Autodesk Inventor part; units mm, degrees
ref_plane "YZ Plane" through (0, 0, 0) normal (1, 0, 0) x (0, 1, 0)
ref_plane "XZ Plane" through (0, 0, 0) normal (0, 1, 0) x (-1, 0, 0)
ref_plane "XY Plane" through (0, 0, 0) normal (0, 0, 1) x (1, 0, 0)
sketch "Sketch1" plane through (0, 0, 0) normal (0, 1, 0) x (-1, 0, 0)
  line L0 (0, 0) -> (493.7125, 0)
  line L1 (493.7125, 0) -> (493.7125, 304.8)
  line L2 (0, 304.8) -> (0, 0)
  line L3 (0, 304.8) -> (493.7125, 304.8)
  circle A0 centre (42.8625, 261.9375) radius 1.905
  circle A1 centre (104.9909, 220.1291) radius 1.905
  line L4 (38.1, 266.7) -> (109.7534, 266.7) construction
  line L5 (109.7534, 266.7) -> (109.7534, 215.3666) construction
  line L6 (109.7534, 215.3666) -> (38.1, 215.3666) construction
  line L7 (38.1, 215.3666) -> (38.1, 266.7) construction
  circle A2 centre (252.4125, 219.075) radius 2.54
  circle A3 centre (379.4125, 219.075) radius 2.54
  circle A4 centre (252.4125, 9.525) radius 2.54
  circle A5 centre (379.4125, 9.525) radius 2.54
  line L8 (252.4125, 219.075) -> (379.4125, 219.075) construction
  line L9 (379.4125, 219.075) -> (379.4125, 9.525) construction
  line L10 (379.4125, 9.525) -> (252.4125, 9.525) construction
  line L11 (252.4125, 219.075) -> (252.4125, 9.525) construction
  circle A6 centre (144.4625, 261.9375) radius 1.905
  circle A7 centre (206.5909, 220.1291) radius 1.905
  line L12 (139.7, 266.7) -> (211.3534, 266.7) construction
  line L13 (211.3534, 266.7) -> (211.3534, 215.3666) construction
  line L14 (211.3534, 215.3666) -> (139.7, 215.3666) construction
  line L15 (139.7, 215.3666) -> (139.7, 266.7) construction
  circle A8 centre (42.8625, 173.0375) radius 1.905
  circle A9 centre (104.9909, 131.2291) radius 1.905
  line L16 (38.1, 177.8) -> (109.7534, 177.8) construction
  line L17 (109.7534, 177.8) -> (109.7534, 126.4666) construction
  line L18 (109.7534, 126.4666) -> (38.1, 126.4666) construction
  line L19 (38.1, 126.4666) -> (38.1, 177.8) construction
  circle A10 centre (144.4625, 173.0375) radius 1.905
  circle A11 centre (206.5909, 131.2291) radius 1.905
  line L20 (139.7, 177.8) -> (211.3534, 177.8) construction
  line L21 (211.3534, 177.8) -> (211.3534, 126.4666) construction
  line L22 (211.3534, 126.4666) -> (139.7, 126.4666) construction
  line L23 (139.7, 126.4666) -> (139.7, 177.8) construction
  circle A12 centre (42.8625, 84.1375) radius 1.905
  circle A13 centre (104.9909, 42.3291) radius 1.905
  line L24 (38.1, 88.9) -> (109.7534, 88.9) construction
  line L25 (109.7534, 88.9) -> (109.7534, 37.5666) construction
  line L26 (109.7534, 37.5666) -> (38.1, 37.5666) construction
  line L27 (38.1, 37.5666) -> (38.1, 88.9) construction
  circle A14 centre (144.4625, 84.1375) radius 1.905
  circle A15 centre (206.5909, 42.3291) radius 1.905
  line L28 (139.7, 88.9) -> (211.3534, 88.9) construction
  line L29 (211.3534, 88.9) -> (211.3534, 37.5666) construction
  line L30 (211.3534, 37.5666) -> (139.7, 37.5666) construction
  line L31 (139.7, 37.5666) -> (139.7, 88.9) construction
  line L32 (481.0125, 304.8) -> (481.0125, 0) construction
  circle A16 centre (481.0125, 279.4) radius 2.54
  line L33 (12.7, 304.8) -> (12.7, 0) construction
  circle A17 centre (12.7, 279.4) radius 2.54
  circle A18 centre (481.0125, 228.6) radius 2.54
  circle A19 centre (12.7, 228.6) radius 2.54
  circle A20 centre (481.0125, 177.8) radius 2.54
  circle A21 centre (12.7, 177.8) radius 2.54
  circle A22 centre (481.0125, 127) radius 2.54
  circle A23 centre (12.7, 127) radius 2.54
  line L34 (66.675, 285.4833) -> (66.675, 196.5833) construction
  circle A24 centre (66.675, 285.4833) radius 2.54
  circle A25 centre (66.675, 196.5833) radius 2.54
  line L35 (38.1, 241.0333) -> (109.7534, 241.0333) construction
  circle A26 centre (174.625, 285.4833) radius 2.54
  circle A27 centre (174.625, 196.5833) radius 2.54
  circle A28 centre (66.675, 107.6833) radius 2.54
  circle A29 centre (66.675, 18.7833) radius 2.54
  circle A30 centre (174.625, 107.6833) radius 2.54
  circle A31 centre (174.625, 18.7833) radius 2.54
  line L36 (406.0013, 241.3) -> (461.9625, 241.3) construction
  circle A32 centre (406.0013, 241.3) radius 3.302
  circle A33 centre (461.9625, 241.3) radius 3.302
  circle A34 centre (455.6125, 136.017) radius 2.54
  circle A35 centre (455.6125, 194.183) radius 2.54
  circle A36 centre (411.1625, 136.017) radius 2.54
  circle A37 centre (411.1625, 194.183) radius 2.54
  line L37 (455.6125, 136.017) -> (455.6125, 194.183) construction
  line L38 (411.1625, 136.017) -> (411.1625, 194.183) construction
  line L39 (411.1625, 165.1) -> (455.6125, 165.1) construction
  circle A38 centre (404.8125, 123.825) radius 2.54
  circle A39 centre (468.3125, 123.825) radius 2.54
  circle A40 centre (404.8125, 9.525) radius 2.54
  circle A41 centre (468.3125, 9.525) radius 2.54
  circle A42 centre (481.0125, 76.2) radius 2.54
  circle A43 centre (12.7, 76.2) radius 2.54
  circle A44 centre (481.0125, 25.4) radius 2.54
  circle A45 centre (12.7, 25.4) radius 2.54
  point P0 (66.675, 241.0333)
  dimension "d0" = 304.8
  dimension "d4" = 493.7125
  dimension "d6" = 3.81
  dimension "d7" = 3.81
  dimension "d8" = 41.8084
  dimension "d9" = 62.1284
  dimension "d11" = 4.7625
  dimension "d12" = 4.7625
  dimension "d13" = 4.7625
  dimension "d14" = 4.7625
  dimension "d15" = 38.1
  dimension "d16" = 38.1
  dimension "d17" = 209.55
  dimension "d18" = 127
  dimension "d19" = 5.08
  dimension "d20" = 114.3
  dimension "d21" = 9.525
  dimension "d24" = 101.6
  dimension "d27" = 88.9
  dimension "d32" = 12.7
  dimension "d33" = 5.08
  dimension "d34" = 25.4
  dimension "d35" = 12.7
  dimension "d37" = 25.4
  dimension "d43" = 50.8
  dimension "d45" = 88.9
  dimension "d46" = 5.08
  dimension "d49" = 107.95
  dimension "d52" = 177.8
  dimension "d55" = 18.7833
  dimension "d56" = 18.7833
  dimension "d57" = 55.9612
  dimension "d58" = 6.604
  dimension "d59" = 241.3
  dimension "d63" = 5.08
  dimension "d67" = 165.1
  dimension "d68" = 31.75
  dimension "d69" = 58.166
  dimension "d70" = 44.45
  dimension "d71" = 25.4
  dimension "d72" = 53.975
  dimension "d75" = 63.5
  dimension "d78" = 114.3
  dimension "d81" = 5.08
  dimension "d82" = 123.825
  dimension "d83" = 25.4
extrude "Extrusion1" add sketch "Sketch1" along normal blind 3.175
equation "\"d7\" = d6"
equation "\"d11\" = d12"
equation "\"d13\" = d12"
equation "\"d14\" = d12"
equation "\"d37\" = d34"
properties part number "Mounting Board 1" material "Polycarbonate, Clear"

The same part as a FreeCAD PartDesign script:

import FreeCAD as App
import Part
import Sketcher

V = App.Vector
Q = App.Units.Quantity


def add_polygon(sketch, points):
    """Adds a closed chain of lines whose ends are joined by coincident constraints."""
    first, n = sketch.GeometryCount, len(points)
    for a, b in zip(points, points[1:] + points[:1]):
        sketch.addGeometry(Part.LineSegment(App.Vector(*a, 0), App.Vector(*b, 0)), False)
    for i in range(n):
        sketch.addConstraint(Sketcher.Constraint("Coincident", first + i, 2, first + (i + 1) % n, 1))

doc = App.newDocument("Part")
body = doc.addObject("PartDesign::Body", "Body")

# Sketch on XZ plane
sketch1 = body.newObject("Sketcher::SketchObject", "Sketch")
sketch1.AttachmentSupport = (doc.getObject("XZ_Plane"), [""])
sketch1.MapMode = "FlatFace"
add_polygon(sketch1, [(0, 304.8), (0, 0), (-493.7, 0), (-493.7, 304.8)])  # lines 0-3
sketch1.addGeometry(Part.Circle(V(-12.7, 25.4, 0), V(0, 0, 1), 2.5), False)  # 4
sketch1.addGeometry(Part.Circle(V(-66.7, 18.8, 0), V(0, 0, 1), 2.5), False)  # 5
sketch1.addGeometry(Part.Circle(V(-105, 42.3, 0), V(0, 0, 1), 1.9), False)  # 6
sketch1.addGeometry(Part.Circle(V(-174.6, 18.8, 0), V(0, 0, 1), 2.5), False)  # 7
sketch1.addGeometry(Part.Circle(V(-206.6, 42.3, 0), V(0, 0, 1), 1.9), False)  # 8
sketch1.addGeometry(Part.Circle(V(-12.7, 76.2, 0), V(0, 0, 1), 2.5), False)  # 9
sketch1.addGeometry(Part.Circle(V(-42.9, 84.1, 0), V(0, 0, 1), 1.9), False)  # 10
sketch1.addGeometry(Part.Circle(V(-66.7, 107.7, 0), V(0, 0, 1), 2.5), False)  # 11
sketch1.addGeometry(Part.Circle(V(-12.7, 127, 0), V(0, 0, 1), 2.5), False)  # 12
sketch1.addGeometry(Part.Circle(V(-105, 131.2, 0), V(0, 0, 1), 1.9), False)  # 13
sketch1.addGeometry(Part.Circle(V(-144.5, 84.1, 0), V(0, 0, 1), 1.9), False)  # 14
sketch1.addGeometry(Part.Circle(V(-174.6, 107.7, 0), V(0, 0, 1), 2.5), False)  # 15
sketch1.addGeometry(Part.Circle(V(-206.6, 131.2, 0), V(0, 0, 1), 1.9), False)  # 16
sketch1.addGeometry(Part.Circle(V(-252.4, 9.5, 0), V(0, 0, 1), 2.5), False)  # 17
sketch1.addGeometry(Part.Circle(V(-379.4, 9.5, 0), V(0, 0, 1), 2.5), False)  # 18
sketch1.addGeometry(Part.Circle(V(-404.8, 9.5, 0), V(0, 0, 1), 2.5), False)  # 19
sketch1.addGeometry(Part.Circle(V(-468.3, 9.5, 0), V(0, 0, 1), 2.5), False)  # 20
sketch1.addGeometry(Part.Circle(V(-481, 25.4, 0), V(0, 0, 1), 2.5), False)  # 21
sketch1.addGeometry(Part.Circle(V(-481, 76.2, 0), V(0, 0, 1), 2.5), False)  # 22
sketch1.addGeometry(Part.Circle(V(-404.8, 123.8, 0), V(0, 0, 1), 2.5), False)  # 23
sketch1.addGeometry(Part.Circle(V(-411.2, 136, 0), V(0, 0, 1), 2.5), False)  # 24
sketch1.addGeometry(Part.Circle(V(-468.3, 123.8, 0), V(0, 0, 1), 2.5), False)  # 25
sketch1.addGeometry(Part.Circle(V(-481, 127, 0), V(0, 0, 1), 2.5), False)  # 26
sketch1.addGeometry(Part.Circle(V(-455.6, 136, 0), V(0, 0, 1), 2.5), False)  # 27
sketch1.addGeometry(Part.Circle(V(-12.7, 177.8, 0), V(0, 0, 1), 2.5), False)  # 28
sketch1.addGeometry(Part.Circle(V(-42.9, 173, 0), V(0, 0, 1), 1.9), False)  # 29
sketch1.addGeometry(Part.Circle(V(-66.7, 196.6, 0), V(0, 0, 1), 2.5), False)  # 30
sketch1.addGeometry(Part.Circle(V(-105, 220.1, 0), V(0, 0, 1), 1.9), False)  # 31
sketch1.addGeometry(Part.Circle(V(-144.5, 173, 0), V(0, 0, 1), 1.9), False)  # 32
sketch1.addGeometry(Part.Circle(V(-174.6, 196.6, 0), V(0, 0, 1), 2.5), False)  # 33
sketch1.addGeometry(Part.Circle(V(-206.6, 220.1, 0), V(0, 0, 1), 1.9), False)  # 34
sketch1.addGeometry(Part.Circle(V(-12.7, 228.6, 0), V(0, 0, 1), 2.5), False)  # 35
sketch1.addGeometry(Part.Circle(V(-42.9, 261.9, 0), V(0, 0, 1), 1.9), False)  # 36
sketch1.addGeometry(Part.Circle(V(-12.7, 279.4, 0), V(0, 0, 1), 2.5), False)  # 37
sketch1.addGeometry(Part.Circle(V(-66.7, 285.5, 0), V(0, 0, 1), 2.5), False)  # 38
sketch1.addGeometry(Part.Circle(V(-144.5, 261.9, 0), V(0, 0, 1), 1.9), False)  # 39
sketch1.addGeometry(Part.Circle(V(-174.6, 285.5, 0), V(0, 0, 1), 2.5), False)  # 40
sketch1.addGeometry(Part.Circle(V(-252.4, 219.1, 0), V(0, 0, 1), 2.5), False)  # 41
sketch1.addGeometry(Part.Circle(V(-481, 177.8, 0), V(0, 0, 1), 2.5), False)  # 42
sketch1.addGeometry(Part.Circle(V(-411.2, 194.2, 0), V(0, 0, 1), 2.5), False)  # 43
sketch1.addGeometry(Part.Circle(V(-379.4, 219.1, 0), V(0, 0, 1), 2.5), False)  # 44
sketch1.addGeometry(Part.Circle(V(-455.6, 194.2, 0), V(0, 0, 1), 2.5), False)  # 45
sketch1.addGeometry(Part.Circle(V(-406, 241.3, 0), V(0, 0, 1), 3.3), False)  # 46
sketch1.addGeometry(Part.Circle(V(-462, 241.3, 0), V(0, 0, 1), 3.3), False)  # 47
sketch1.addGeometry(Part.Circle(V(-481, 228.6, 0), V(0, 0, 1), 2.5), False)  # 48
sketch1.addGeometry(Part.Circle(V(-481, 279.4, 0), V(0, 0, 1), 2.5), False)  # 49
sketch1.addConstraint(Sketcher.Constraint("Vertical", 0))
sketch1.addConstraint(Sketcher.Constraint("Horizontal", 1))
sketch1.addConstraint(Sketcher.Constraint("Vertical", 2))
sketch1.addConstraint(Sketcher.Constraint("Horizontal", 3))
sketch1.addConstraint(Sketcher.Constraint("Coincident", 0, 2, -1, 1))
sketch1.addConstraint(Sketcher.Constraint("Equal", 4, 5))
sketch1.addConstraint(Sketcher.Constraint("Equal", 5, 7))
sketch1.addConstraint(Sketcher.Constraint("Equal", 6, 8))
sketch1.addConstraint(Sketcher.Constraint("Equal", 7, 9))
sketch1.addConstraint(Sketcher.Constraint("Equal", 8, 10))
sketch1.addConstraint(Sketcher.Constraint("Equal", 9, 11))
sketch1.addConstraint(Sketcher.Constraint("Equal", 11, 12))
sketch1.addConstraint(Sketcher.Constraint("Equal", 10, 13))
sketch1.addConstraint(Sketcher.Constraint("Equal", 13, 14))
sketch1.addConstraint(Sketcher.Constraint("Equal", 12, 15))
sketch1.addConstraint(Sketcher.Constraint("Equal", 14, 16))
sketch1.addConstraint(Sketcher.Constraint("Equal", 15, 17))
sketch1.addConstraint(Sketcher.Constraint("Equal", 17, 18))
sketch1.addConstraint(Sketcher.Constraint("Equal", 18, 19))
sketch1.addConstraint(Sketcher.Constraint("Equal", 19, 20))
sketch1.addConstraint(Sketcher.Constraint("Equal", 20, 21))
sketch1.addConstraint(Sketcher.Constraint("Equal", 21, 22))
sketch1.addConstraint(Sketcher.Constraint("Equal", 22, 23))
sketch1.addConstraint(Sketcher.Constraint("Equal", 23, 24))
sketch1.addConstraint(Sketcher.Constraint("Equal", 24, 25))
sketch1.addConstraint(Sketcher.Constraint("Equal", 25, 26))
sketch1.addConstraint(Sketcher.Constraint("Equal", 26, 27))
sketch1.addConstraint(Sketcher.Constraint("Equal", 27, 28))
sketch1.addConstraint(Sketcher.Constraint("Equal", 16, 29))
sketch1.addConstraint(Sketcher.Constraint("Equal", 28, 30))
sketch1.addConstraint(Sketcher.Constraint("Equal", 29, 31))
sketch1.addConstraint(Sketcher.Constraint("Equal", 31, 32))
sketch1.addConstraint(Sketcher.Constraint("Equal", 30, 33))
sketch1.addConstraint(Sketcher.Constraint("Equal", 32, 34))
sketch1.addConstraint(Sketcher.Constraint("Equal", 33, 35))
sketch1.addConstraint(Sketcher.Constraint("Equal", 34, 36))
sketch1.addConstraint(Sketcher.Constraint("Equal", 35, 37))
sketch1.addConstraint(Sketcher.Constraint("Equal", 37, 38))
sketch1.addConstraint(Sketcher.Constraint("Equal", 36, 39))
sketch1.addConstraint(Sketcher.Constraint("Equal", 38, 40))
sketch1.addConstraint(Sketcher.Constraint("Equal", 40, 41))
sketch1.addConstraint(Sketcher.Constraint("Equal", 41, 42))
sketch1.addConstraint(Sketcher.Constraint("Equal", 42, 43))
sketch1.addConstraint(Sketcher.Constraint("Equal", 43, 44))
sketch1.addConstraint(Sketcher.Constraint("Equal", 44, 45))
sketch1.addConstraint(Sketcher.Constraint("Equal", 46, 47))
sketch1.addConstraint(Sketcher.Constraint("Equal", 45, 48))
sketch1.addConstraint(Sketcher.Constraint("Equal", 48, 49))
sketch1.addConstraint(Sketcher.Constraint("Horizontal", 5, 3, 7, 3))
sketch1.addConstraint(Sketcher.Constraint("Horizontal", 6, 3, 8, 3))
sketch1.addConstraint(Sketcher.Constraint("Horizontal", 10, 3, 14, 3))
sketch1.addConstraint(Sketcher.Constraint("Horizontal", 11, 3, 15, 3))
sketch1.addConstraint(Sketcher.Constraint("Horizontal", 13, 3, 16, 3))
sketch1.addConstraint(Sketcher.Constraint("Horizontal", 17, 3, 18, 3))
sketch1.addConstraint(Sketcher.Constraint("Horizontal", 18, 3, 19, 3))
sketch1.addConstraint(Sketcher.Constraint("Horizontal", 19, 3, 20, 3))
sketch1.addConstraint(Sketcher.Constraint("Horizontal", 4, 3, 21, 3))
sketch1.addConstraint(Sketcher.Constraint("Horizontal", 9, 3, 22, 3))
sketch1.addConstraint(Sketcher.Constraint("Horizontal", 23, 3, 25, 3))
sketch1.addConstraint(Sketcher.Constraint("Horizontal", 12, 3, 26, 3))
sketch1.addConstraint(Sketcher.Constraint("Horizontal", 24, 3, 27, 3))
sketch1.addConstraint(Sketcher.Constraint("Horizontal", 29, 3, 32, 3))
sketch1.addConstraint(Sketcher.Constraint("Horizontal", 30, 3, 33, 3))
sketch1.addConstraint(Sketcher.Constraint("Horizontal", 31, 3, 34, 3))
sketch1.addConstraint(Sketcher.Constraint("Horizontal", 36, 3, 39, 3))
sketch1.addConstraint(Sketcher.Constraint("Horizontal", 38, 3, 40, 3))
sketch1.addConstraint(Sketcher.Constraint("Horizontal", 28, 3, 42, 3))
sketch1.addConstraint(Sketcher.Constraint("Horizontal", 41, 3, 44, 3))
sketch1.addConstraint(Sketcher.Constraint("Horizontal", 43, 3, 45, 3))
sketch1.addConstraint(Sketcher.Constraint("Horizontal", 46, 3, 47, 3))
sketch1.addConstraint(Sketcher.Constraint("Horizontal", 35, 3, 48, 3))
sketch1.addConstraint(Sketcher.Constraint("Horizontal", 37, 3, 49, 3))
sketch1.addConstraint(Sketcher.Constraint("Vertical", 4, 3, 9, 3))
sketch1.addConstraint(Sketcher.Constraint("Vertical", 5, 3, 11, 3))
sketch1.addConstraint(Sketcher.Constraint("Vertical", 9, 3, 12, 3))
sketch1.addConstraint(Sketcher.Constraint("Vertical", 6, 3, 13, 3))
sketch1.addConstraint(Sketcher.Constraint("Vertical", 7, 3, 15, 3))
sketch1.addConstraint(Sketcher.Constraint("Vertical", 8, 3, 16, 3))
sketch1.addConstraint(Sketcher.Constraint("Vertical", 21, 3, 22, 3))
sketch1.addConstraint(Sketcher.Constraint("Vertical", 19, 3, 23, 3))
sketch1.addConstraint(Sketcher.Constraint("Vertical", 20, 3, 25, 3))
sketch1.addConstraint(Sketcher.Constraint("Vertical", 22, 3, 26, 3))
sketch1.addConstraint(Sketcher.Constraint("Vertical", 12, 3, 28, 3))
sketch1.addConstraint(Sketcher.Constraint("Vertical", 10, 3, 29, 3))
sketch1.addConstraint(Sketcher.Constraint("Vertical", 11, 3, 30, 3))
sketch1.addConstraint(Sketcher.Constraint("Vertical", 13, 3, 31, 3))
sketch1.addConstraint(Sketcher.Constraint("Vertical", 14, 3, 32, 3))
sketch1.addConstraint(Sketcher.Constraint("Vertical", 15, 3, 33, 3))
sketch1.addConstraint(Sketcher.Constraint("Vertical", 16, 3, 34, 3))
sketch1.addConstraint(Sketcher.Constraint("Vertical", 28, 3, 35, 3))
sketch1.addConstraint(Sketcher.Constraint("Vertical", 29, 3, 36, 3))
sketch1.addConstraint(Sketcher.Constraint("Vertical", 35, 3, 37, 3))
sketch1.addConstraint(Sketcher.Constraint("Vertical", 30, 3, 38, 3))
sketch1.addConstraint(Sketcher.Constraint("Vertical", 32, 3, 39, 3))
sketch1.addConstraint(Sketcher.Constraint("Vertical", 33, 3, 40, 3))
sketch1.addConstraint(Sketcher.Constraint("Vertical", 17, 3, 41, 3))
sketch1.addConstraint(Sketcher.Constraint("Vertical", 26, 3, 42, 3))
sketch1.addConstraint(Sketcher.Constraint("Vertical", 24, 3, 43, 3))
sketch1.addConstraint(Sketcher.Constraint("Vertical", 18, 3, 44, 3))
sketch1.addConstraint(Sketcher.Constraint("Vertical", 27, 3, 45, 3))
sketch1.addConstraint(Sketcher.Constraint("Vertical", 42, 3, 48, 3))
sketch1.addConstraint(Sketcher.Constraint("Vertical", 48, 3, 49, 3))
sketch1.addConstraint(Sketcher.Constraint("Diameter", 4, Q("0.2 in")))
sketch1.addConstraint(Sketcher.Constraint("Diameter", 6, Q("0.15 in")))
sketch1.addConstraint(Sketcher.Constraint("Diameter", 46, Q("0.26 in")))
sketch1.addConstraint(Sketcher.Constraint("DistanceY", 0, 2, 0, 1, Q("12 in")))
sketch1.addConstraint(Sketcher.Constraint("DistanceY", -1, 1, 4, 3, Q("1 in")))
sketch1.addConstraint(Sketcher.Constraint("DistanceY", -1, 1, 12, 3, Q("5 in")))
sketch1.addConstraint(Sketcher.Constraint("DistanceY", -1, 1, 28, 3, Q("7 in")))
sketch1.addConstraint(Sketcher.Constraint("DistanceX", 8, 3, 6, 3, Q("4 in")))
sketch1.addConstraint(Sketcher.Constraint("DistanceY", 4, 3, 9, 3, Q("2 in")))
sketch1.addConstraint(Sketcher.Constraint("DistanceX", 18, 3, 17, 3, Q("5 in")))
sketch1.addConstraint(Sketcher.Constraint("DistanceX", 19, 3, 18, 3, Q("1 in")))
sketch1.addConstraint(Sketcher.Constraint("DistanceX", 21, 3, 18, 3, Q("4 in")))
sketch1.addConstraint(Sketcher.Constraint("DistanceX", 26, 3, 27, 3, Q("1 in")))
sketch1.addConstraint(Sketcher.Constraint("DistanceY", 28, 3, 35, 3, Q("2 in")))
sketch1.addConstraint(Sketcher.Constraint("DistanceY", 35, 3, 37, 3, Q("2 in")))
sketch1.addConstraint(Sketcher.Constraint("DistanceX", 47, 3, 43, 3, Q("2 in")))
sketch1.addConstraint(Sketcher.Constraint("DistanceX", 1, 2, 20, 3, Q("1 in")))
sketch1.addConstraint(Sketcher.Constraint("DistanceX", 4, 3, -1, 1, Q("0.5 in")))
sketch1.addConstraint(Sketcher.Constraint("DistanceY", -1, 1, 46, 3, Q("9.5 in")))
sketch1.addConstraint(Sketcher.Constraint("DistanceY", 5, 3, 11, 3, Q("3.5 in")))
sketch1.addConstraint(Sketcher.Constraint("DistanceY", 6, 3, 13, 3, Q("3.5 in")))
sketch1.addConstraint(Sketcher.Constraint("DistanceX", 20, 3, 19, 3, Q("2.5 in")))
sketch1.addConstraint(Sketcher.Constraint("DistanceY", 19, 3, 23, 3, Q("4.5 in")))
sketch1.addConstraint(Sketcher.Constraint("DistanceY", 10, 3, 29, 3, Q("3.5 in")))
sketch1.addConstraint(Sketcher.Constraint("DistanceY", 11, 3, 30, 3, Q("3.5 in")))
sketch1.addConstraint(Sketcher.Constraint("DistanceY", 13, 3, 31, 3, Q("3.5 in")))
sketch1.addConstraint(Sketcher.Constraint("DistanceY", 29, 3, 36, 3, Q("3.5 in")))
sketch1.addConstraint(Sketcher.Constraint("DistanceY", 30, 3, 38, 3, Q("3.5 in")))
sketch1.addConstraint(Sketcher.Constraint("DistanceX", 1, 2, 1, 1, Q("19.4375 in")))
sketch1.addConstraint(Sketcher.Constraint("DistanceX", 7, 3, 5, 3, Q("4.25 in")))
sketch1.addConstraint(Sketcher.Constraint("DistanceX", 17, 3, 14, 3, Q("4.25 in")))
sketch1.addConstraint(Sketcher.Constraint("DistanceX", 24, 3, 18, 3, Q("1.25 in")))
sketch1.addConstraint(Sketcher.Constraint("DistanceY", 24, 3, 43, 3, Q("2.29 in")))
sketch1.addConstraint(Sketcher.Constraint("DistanceY", -1, 1, 17, 3, Q("0.375 in")))
sketch1.addConstraint(Sketcher.Constraint("DistanceX", 5, 3, 4, 3, Q("2.125 in")))
sketch1.addConstraint(Sketcher.Constraint("DistanceX", 6, 3, 10, 3, Q("2.446 in")))
sketch1.addConstraint(Sketcher.Constraint("DistanceY", 6, 3, 10, 3, Q("1.646 in")))
sketch1.addConstraint(Sketcher.Constraint("DistanceX", 8, 3, 14, 3, Q("2.446 in")))
sketch1.addConstraint(Sketcher.Constraint("DistanceY", 29, 3, 28, 3, Q("0.1875 in")))
sketch1.addConstraint(Sketcher.Constraint("DistanceY", -1, 1, 5, 3, Q("0.7395 in")))
sketch1.addConstraint(Sketcher.Constraint("DistanceX", 47, 3, 46, 3, Q("2.2032 in")))
sketch1.addConstraint(Sketcher.Constraint("DistanceY", 23, 3, 24, 3, Q("0.48 in")))
sketch1.addConstraint(Sketcher.Constraint("DistanceY", 43, 3, 44, 3, Q("0.98 in")))
pad1 = body.newObject("PartDesign::Pad", "Pad")
pad1.Profile = sketch1
pad1.Length = Q("0.125 in")
pad1.Reversed = True

doc.recompute()
